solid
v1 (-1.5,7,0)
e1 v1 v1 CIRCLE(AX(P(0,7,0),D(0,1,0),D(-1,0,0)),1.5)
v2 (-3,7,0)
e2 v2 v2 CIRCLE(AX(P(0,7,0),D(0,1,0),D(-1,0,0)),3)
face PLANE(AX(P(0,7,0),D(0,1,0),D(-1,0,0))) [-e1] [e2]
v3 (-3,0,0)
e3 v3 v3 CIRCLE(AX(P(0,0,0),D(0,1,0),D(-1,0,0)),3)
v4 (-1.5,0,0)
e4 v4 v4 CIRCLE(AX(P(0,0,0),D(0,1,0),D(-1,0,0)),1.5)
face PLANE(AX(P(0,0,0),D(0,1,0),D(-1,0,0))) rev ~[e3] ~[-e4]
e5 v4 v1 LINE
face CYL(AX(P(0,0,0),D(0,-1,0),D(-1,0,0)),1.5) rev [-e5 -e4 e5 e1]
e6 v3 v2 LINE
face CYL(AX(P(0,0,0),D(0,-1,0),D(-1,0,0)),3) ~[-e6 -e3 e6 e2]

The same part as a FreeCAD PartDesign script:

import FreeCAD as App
import Part
import Sketcher

V = App.Vector

doc = App.newDocument("Part")
body = doc.addObject("PartDesign::Body", "Body")

sketch1 = body.newObject("Sketcher::SketchObject", "Sketch")
sketch1.AttachmentSupport = (doc.getObject("XZ_Plane"), [""])
sketch1.MapMode = "FlatFace"
sketch1.addGeometry(Part.Circle(V(0, 0, 0), V(0, 0, 1), 3), False)
sketch1.addGeometry(Part.Circle(V(0, 0, 0), V(0, 0, 1), 1.5), False)
sketch1.addConstraint(Sketcher.Constraint("Coincident", 0, 3, -1, 1))
sketch1.addConstraint(Sketcher.Constraint("Coincident", 1, 3, -1, 1))
sketch1.addConstraint(Sketcher.Constraint("Diameter", 0, 6.0))
sketch1.addConstraint(Sketcher.Constraint("Diameter", 1, 3.0))
pad1 = body.newObject("PartDesign::Pad", "Pad")
pad1.Profile = sketch1
pad1.Length = 7
pad1.Reversed = True

doc.recompute()
